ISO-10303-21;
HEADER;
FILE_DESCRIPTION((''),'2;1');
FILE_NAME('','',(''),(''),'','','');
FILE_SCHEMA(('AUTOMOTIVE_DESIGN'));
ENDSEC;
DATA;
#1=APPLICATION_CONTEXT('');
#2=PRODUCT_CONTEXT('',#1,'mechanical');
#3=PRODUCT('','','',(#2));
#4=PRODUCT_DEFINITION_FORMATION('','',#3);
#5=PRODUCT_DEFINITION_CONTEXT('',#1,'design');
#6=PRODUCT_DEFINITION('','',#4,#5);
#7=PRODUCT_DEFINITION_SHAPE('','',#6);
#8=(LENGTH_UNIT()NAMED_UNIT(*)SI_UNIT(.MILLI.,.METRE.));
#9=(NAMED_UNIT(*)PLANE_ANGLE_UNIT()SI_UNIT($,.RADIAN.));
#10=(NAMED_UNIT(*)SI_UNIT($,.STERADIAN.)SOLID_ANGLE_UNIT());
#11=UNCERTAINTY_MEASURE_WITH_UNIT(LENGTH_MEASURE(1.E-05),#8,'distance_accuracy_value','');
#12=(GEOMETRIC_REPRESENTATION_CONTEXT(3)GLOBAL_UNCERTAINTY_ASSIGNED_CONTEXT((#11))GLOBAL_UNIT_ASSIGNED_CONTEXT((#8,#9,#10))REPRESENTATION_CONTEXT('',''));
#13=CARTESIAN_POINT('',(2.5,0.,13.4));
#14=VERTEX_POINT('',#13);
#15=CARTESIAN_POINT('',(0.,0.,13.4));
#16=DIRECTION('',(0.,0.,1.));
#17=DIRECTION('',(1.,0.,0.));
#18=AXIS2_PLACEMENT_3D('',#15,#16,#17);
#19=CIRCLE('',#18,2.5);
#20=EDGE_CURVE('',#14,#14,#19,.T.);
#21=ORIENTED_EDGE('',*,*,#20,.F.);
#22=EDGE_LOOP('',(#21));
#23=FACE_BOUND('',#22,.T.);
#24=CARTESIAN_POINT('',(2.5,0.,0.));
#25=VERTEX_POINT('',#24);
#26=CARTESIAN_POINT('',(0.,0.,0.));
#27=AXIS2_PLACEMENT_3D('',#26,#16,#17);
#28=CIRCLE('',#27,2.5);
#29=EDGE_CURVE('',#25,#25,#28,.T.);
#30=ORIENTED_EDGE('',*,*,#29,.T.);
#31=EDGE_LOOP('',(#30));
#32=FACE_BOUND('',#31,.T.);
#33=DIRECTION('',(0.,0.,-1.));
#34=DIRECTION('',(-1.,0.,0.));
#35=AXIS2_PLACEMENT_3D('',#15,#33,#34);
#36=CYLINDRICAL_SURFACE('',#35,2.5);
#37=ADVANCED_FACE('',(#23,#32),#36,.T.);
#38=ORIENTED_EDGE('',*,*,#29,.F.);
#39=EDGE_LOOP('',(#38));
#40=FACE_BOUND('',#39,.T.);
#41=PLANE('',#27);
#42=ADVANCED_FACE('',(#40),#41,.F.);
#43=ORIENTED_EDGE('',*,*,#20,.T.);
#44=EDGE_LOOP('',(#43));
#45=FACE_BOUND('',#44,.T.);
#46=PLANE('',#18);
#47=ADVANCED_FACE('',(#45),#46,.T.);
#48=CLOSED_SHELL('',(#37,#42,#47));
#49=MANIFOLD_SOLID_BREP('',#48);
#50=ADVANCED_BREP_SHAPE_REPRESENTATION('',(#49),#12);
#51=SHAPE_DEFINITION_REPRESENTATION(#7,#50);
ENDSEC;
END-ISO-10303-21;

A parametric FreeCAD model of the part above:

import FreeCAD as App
import Part
import Sketcher

V = App.Vector

doc = App.newDocument("Part")
body = doc.addObject("PartDesign::Body", "Body")

# Sketch on XY plane
sketch1 = body.newObject("Sketcher::SketchObject", "Sketch")
sketch1.AttachmentSupport = (doc.getObject("XY_Plane"), [""])
sketch1.MapMode = "FlatFace"
sketch1.addGeometry(Part.Circle(V(0, 0, 0), V(0, 0, 1), 2.5), False)
sketch1.addConstraint(Sketcher.Constraint("Coincident", 0, 3, -1, 1))
sketch1.addConstraint(Sketcher.Constraint("Diameter", 0, 5.0))
pad1 = body.newObject("PartDesign::Pad", "Pad")
pad1.Profile = sketch1
pad1.Length = 13.4

doc.recompute()
